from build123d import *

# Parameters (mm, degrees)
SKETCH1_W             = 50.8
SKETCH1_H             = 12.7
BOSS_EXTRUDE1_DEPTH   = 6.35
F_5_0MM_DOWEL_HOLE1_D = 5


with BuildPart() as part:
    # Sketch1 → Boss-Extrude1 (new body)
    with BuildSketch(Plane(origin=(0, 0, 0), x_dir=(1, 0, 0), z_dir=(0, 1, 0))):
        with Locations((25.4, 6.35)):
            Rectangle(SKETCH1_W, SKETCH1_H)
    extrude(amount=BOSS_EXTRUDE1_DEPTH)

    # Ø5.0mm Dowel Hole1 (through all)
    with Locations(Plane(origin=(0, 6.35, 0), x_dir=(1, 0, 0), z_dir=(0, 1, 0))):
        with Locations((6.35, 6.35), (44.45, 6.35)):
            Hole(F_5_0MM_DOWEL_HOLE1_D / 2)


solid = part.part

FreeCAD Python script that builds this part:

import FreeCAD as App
import Part
import Sketcher
from FreeCAD import Vector
Q = App.Units.Quantity

doc = App.newDocument("Part")
params = doc.addObject("Spreadsheet::Sheet", "Params")
for row, (alias, value) in enumerate([
    ("sketch1_width", "2 in"),
    ("sketch1_height", "0.5 in"),
    ("pad1_length", "0.25 in"),
    ("hole_diameter", "5 mm"),
], start=1):
    params.set(f"A{row}", alias)
    params.set(f"B{row}", "=" + value)
    params.setAlias(f"B{row}", alias)

body = doc.addObject("PartDesign::Body", "Body")

# Sketch on XZ plane
sketch1 = body.newObject("Sketcher::SketchObject", "Sketch")
sketch1.AttachmentSupport = (doc.getObject("XZ_Plane"), [""])
sketch1.MapMode = "FlatFace"
sketch1.addGeometry([
    Part.LineSegment(Vector(0, -13, 0), Vector(0, 0, 0)),
    Part.LineSegment(Vector(0, 0, 0), Vector(51, 0, 0)),
    Part.LineSegment(Vector(51, 0, 0), Vector(51, -13, 0)),
    Part.LineSegment(Vector(51, -13, 0), Vector(0, -13, 0)),
], False)
sketch1.addConstraint([
    Sketcher.Constraint("Coincident", 0, 2, 1, 1),
    Sketcher.Constraint("Coincident", 1, 2, 2, 1),
    Sketcher.Constraint("Coincident", 2, 2, 3, 1),
    Sketcher.Constraint("Coincident", 3, 2, 0, 1),
    Sketcher.Constraint("Vertical", 0),
    Sketcher.Constraint("Horizontal", 1),
    Sketcher.Constraint("Vertical", 2),
    Sketcher.Constraint("Horizontal", 3),
    Sketcher.Constraint("Coincident", 0, 2, -1, 1),
    Sketcher.Constraint("DistanceX", 1, 1, 1, 2, Q("2 in")),
    Sketcher.Constraint("DistanceY", 0, 1, 0, 2, Q("0.5 in")),
])
sketch1.setExpression("Constraints[9]", "Params.sketch1_width")
sketch1.setExpression("Constraints[10]", "Params.sketch1_height")
pad1 = body.newObject("PartDesign::Pad", "Pad")
pad1.Profile = sketch1
pad1.setExpression("Length", "Params.pad1_length")
pad1.Reversed = True

# Sketch on XZ plane
sketch2 = body.newObject("Sketcher::SketchObject", "Sketch001")
sketch2.AttachmentSupport = (doc.getObject("XZ_Plane"), [""])
sketch2.MapMode = "FlatFace"
sketch2.AttachmentOffset = App.Placement(Vector(0, 0, -0.25 * 25.4), App.Rotation())
sketch2.addGeometry([
    Part.Circle(Vector(6.3, -6.3, 0), Vector(0, 0, 1), 2.5),
    Part.Circle(Vector(44.5, -6.3, 0), Vector(0, 0, 1), 2.5),
], False)
sketch2.addConstraint([
    Sketcher.Constraint("Equal", 0, 1),
    Sketcher.Constraint("Horizontal", 0, 3, 1, 3),
    Sketcher.Constraint("DistanceX", 0, 3, 1, 3, Q("1.5 in")),
    Sketcher.Constraint("Diameter", 0, 5.0),
    Sketcher.Constraint("DistanceX", -1, 1, 0, 3, Q("0.25 in")),
    Sketcher.Constraint("DistanceY", 0, 3, -1, 1, Q("0.25 in")),
])
doc.recompute()
hole = body.newObject("PartDesign::Hole", "Hole")
hole.Profile = sketch2
hole.ThreadType = "None"
hole.setExpression("Diameter", "Params.hole_diameter")
hole.DepthType = "ThroughAll"
hole.Reversed = True

doc.recompute()
